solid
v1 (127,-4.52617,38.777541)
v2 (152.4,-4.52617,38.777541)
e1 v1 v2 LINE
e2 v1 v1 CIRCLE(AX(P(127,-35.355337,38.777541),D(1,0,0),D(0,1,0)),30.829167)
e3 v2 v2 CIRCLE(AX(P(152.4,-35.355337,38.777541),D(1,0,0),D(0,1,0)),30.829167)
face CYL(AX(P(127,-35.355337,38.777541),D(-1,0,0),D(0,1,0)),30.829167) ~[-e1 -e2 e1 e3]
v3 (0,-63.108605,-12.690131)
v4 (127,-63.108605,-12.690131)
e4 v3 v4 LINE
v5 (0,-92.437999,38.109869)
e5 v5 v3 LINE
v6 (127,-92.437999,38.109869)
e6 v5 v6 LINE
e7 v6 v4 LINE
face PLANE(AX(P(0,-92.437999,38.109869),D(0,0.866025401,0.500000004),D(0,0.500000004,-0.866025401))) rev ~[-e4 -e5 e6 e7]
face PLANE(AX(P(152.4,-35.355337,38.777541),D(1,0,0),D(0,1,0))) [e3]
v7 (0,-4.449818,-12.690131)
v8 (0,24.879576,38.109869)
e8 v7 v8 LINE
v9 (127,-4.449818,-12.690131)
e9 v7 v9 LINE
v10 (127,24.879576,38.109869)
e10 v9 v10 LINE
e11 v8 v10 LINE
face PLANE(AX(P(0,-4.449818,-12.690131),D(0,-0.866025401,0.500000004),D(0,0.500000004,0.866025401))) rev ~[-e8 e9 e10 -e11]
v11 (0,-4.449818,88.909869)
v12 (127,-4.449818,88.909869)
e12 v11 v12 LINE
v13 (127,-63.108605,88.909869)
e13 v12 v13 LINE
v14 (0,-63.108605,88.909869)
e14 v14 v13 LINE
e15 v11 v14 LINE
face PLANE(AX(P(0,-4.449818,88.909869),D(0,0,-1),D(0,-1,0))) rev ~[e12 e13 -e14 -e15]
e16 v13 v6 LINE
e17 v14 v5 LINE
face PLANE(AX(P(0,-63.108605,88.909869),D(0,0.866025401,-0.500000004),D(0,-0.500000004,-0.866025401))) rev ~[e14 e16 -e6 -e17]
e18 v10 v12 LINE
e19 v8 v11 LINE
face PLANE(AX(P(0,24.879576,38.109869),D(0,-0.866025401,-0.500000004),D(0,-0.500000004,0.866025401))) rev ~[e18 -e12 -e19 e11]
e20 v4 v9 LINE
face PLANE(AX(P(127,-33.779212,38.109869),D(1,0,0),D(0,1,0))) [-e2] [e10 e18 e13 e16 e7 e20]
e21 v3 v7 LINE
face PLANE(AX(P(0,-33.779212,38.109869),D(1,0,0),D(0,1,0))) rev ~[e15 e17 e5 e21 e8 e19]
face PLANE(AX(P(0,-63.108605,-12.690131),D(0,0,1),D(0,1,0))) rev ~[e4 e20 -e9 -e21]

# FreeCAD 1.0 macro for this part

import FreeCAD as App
import Part
import Sketcher
from FreeCAD import Vector
Q = App.Units.Quantity

doc = App.newDocument("Part")
body = doc.addObject("PartDesign::Body", "Body")

# Sketch on YZ plane
sketch1 = body.newObject("Sketcher::SketchObject", "Sketch")
sketch1.AttachmentSupport = (doc.getObject("YZ_Plane"), [""])
sketch1.MapMode = "FlatFace"
sketch1.addGeometry([
    Part.LineSegment(Vector(-63, -13, 0), Vector(-4, -13, 0)),  # 0
    Part.LineSegment(Vector(-4, -13, 0), Vector(25, 38, 0)),  # 1
    Part.LineSegment(Vector(25, 38, 0), Vector(-4, 89, 0)),  # 2
    Part.LineSegment(Vector(-4, 89, 0), Vector(-63, 89, 0)),  # 3
    Part.LineSegment(Vector(-63, 89, 0), Vector(-92, 38, 0)),  # 4
    Part.LineSegment(Vector(-92, 38, 0), Vector(-63, -13, 0)),  # 5
], False)
sketch1.addConstraint([
    Sketcher.Constraint("Coincident", 0, 2, 1, 1),
    Sketcher.Constraint("Coincident", 1, 2, 2, 1),
    Sketcher.Constraint("Coincident", 2, 2, 3, 1),
    Sketcher.Constraint("Coincident", 3, 2, 4, 1),
    Sketcher.Constraint("Coincident", 4, 2, 5, 1),
    Sketcher.Constraint("Coincident", 5, 2, 0, 1),
    Sketcher.Constraint("Horizontal", 0),
    Sketcher.Constraint("Horizontal", 3),
    Sketcher.Constraint("Parallel", 1, 4),
    Sketcher.Constraint("Parallel", 2, 5),
    Sketcher.Constraint("Horizontal", 1, 2, 4, 2),
    Sketcher.Constraint("Vertical", 0, 2, 2, 2),
    Sketcher.Constraint("Vertical", 3, 2, 5, 2),
    Sketcher.Constraint("Angle", 1, Q("60 deg")),
    Sketcher.Constraint("DistanceY", 0, 2, 1, 2, Q("2 in")),
    Sketcher.Constraint("DistanceX", 4, 2, -1, 1, Q("92.437999 mm")),
    Sketcher.Constraint("DistanceX", 0, 1, 0, 2, Q("58.658787 mm")),
    Sketcher.Constraint("DistanceY", 0, 2, -1, 1, Q("12.690131 mm")),
])
pad1 = body.newObject("PartDesign::Pad", "Pad")
pad1.Profile = sketch1
pad1.Length = Q("5 in")

# Sketch on YZ plane
sketch2 = body.newObject("Sketcher::SketchObject", "Sketch001")
sketch2.AttachmentSupport = (doc.getObject("YZ_Plane"), [""])
sketch2.MapMode = "FlatFace"
sketch2.AttachmentOffset = App.Placement(Vector(0, 0, 5 * 25.4), App.Rotation())
sketch2.addGeometry(Part.Circle(Vector(-35, 39, 0), Vector(0, 0, 1), 31), False)
sketch2.addConstraint([
    Sketcher.Constraint("Diameter", 0, Q("61.658334 mm")),
    Sketcher.Constraint("DistanceY", -1, 1, 0, 3, Q("38.777541 mm")),
    Sketcher.Constraint("DistanceX", 0, 3, -1, 1, Q("35.355337 mm")),
])
pad2 = body.newObject("PartDesign::Pad", "Pad001")
pad2.Profile = sketch2
pad2.Length = Q("1 in")

doc.recompute()
